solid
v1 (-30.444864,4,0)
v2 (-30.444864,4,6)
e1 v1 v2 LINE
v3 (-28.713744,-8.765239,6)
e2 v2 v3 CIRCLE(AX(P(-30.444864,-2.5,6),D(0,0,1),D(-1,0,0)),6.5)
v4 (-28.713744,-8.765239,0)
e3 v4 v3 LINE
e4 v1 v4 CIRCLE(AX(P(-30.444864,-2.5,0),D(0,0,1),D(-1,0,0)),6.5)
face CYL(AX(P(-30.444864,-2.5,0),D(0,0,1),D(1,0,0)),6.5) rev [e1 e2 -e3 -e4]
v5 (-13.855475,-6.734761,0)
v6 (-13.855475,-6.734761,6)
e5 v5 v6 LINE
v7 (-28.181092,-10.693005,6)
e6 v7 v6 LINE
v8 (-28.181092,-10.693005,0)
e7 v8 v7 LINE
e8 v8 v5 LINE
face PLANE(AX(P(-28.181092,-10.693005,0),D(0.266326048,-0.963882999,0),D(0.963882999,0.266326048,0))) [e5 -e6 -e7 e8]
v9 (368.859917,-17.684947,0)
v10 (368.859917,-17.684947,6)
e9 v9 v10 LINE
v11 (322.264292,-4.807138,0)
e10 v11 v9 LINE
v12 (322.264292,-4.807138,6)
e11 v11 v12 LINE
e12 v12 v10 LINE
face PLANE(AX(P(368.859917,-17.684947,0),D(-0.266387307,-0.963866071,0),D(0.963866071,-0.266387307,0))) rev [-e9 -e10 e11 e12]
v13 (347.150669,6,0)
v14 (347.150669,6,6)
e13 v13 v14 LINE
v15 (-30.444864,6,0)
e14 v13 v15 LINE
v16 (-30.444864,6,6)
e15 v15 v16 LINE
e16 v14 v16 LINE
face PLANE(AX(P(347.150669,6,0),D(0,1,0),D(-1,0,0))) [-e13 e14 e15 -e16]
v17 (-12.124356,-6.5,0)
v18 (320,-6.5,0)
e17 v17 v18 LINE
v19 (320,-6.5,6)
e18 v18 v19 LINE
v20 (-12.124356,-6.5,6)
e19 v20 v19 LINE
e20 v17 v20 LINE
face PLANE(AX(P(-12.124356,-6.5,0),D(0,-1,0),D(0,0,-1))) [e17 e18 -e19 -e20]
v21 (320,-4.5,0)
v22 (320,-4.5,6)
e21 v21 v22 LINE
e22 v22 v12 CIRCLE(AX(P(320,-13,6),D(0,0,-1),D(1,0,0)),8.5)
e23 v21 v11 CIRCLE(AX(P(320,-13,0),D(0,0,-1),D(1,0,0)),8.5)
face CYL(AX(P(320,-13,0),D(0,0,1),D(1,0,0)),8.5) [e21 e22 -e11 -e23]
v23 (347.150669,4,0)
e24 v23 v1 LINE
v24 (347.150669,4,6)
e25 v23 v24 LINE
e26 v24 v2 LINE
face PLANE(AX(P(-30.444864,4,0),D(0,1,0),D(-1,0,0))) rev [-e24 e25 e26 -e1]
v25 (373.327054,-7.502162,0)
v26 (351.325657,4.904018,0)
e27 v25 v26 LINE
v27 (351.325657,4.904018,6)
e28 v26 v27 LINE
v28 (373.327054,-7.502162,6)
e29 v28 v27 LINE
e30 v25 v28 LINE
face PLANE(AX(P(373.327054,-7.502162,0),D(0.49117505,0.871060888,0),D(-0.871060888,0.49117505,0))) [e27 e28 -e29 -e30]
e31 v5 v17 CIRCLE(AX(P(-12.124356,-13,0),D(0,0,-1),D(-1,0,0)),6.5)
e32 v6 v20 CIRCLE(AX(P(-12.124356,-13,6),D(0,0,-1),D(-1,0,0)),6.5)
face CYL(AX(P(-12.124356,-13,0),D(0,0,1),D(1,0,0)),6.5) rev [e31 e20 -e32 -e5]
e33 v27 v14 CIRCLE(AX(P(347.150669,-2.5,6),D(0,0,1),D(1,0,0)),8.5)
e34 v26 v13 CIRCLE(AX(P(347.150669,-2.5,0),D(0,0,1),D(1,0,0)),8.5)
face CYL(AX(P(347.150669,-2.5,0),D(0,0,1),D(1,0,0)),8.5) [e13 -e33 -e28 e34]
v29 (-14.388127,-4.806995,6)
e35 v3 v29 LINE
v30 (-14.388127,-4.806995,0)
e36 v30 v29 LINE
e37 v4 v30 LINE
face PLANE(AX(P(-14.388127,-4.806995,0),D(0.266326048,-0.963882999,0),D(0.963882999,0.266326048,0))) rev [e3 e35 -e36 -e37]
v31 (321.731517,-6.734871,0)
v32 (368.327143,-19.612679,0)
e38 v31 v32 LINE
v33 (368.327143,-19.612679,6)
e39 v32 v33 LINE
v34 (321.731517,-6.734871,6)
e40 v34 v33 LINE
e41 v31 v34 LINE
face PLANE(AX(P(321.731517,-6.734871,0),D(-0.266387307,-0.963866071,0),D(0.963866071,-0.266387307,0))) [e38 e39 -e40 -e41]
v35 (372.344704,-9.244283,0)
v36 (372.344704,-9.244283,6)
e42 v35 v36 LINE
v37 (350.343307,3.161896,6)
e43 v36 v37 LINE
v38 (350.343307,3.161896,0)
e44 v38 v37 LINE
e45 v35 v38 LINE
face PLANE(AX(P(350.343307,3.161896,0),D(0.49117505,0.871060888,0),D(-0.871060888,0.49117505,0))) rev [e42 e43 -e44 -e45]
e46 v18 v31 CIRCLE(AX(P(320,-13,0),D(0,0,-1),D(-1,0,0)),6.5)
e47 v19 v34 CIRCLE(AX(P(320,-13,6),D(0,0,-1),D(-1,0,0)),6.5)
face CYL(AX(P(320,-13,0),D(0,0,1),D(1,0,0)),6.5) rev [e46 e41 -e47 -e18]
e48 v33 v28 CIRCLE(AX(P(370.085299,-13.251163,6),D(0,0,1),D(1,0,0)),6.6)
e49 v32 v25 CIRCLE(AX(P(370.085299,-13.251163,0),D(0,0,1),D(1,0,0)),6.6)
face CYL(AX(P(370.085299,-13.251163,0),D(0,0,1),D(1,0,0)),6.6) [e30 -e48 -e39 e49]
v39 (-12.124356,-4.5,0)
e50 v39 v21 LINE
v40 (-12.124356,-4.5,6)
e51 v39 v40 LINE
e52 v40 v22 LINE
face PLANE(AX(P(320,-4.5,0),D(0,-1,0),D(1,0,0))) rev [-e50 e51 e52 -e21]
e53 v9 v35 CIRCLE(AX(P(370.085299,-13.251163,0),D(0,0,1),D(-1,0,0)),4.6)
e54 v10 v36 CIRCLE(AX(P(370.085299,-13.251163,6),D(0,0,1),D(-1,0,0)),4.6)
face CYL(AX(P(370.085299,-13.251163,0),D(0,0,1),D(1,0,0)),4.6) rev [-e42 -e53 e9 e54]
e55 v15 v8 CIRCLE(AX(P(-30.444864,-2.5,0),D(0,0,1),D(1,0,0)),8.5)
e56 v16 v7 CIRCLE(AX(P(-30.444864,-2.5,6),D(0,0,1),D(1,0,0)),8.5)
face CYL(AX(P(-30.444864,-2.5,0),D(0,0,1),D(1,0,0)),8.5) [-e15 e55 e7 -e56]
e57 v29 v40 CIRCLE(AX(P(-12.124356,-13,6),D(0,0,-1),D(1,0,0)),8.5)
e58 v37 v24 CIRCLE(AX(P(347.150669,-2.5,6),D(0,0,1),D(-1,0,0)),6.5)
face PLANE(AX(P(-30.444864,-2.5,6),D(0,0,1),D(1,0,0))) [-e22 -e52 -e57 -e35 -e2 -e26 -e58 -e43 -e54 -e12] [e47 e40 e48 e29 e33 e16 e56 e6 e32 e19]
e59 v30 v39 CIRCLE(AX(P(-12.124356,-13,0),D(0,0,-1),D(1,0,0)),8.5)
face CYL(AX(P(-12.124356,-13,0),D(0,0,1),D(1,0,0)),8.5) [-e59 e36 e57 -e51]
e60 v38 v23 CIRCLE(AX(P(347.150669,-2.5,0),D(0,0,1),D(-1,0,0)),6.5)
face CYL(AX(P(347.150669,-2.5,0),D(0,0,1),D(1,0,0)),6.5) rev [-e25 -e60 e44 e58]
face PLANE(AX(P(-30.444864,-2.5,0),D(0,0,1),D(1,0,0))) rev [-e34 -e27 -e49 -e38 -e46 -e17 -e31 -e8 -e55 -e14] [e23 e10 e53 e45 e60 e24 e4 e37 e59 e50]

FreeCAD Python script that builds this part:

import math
import FreeCAD as App
import Part
import Sketcher

doc = App.newDocument("Part")
body = doc.addObject("PartDesign::Body", "Body")

# Sketch on XY plane
sketch1 = body.newObject("Sketcher::SketchObject", "Sketch")
sketch1.AttachmentSupport = (doc.getObject("XY_Plane"), [""])
sketch1.MapMode = "FlatFace"
sketch1.AttachmentOffset = App.Placement(App.Vector(0, 0, 6), App.Rotation())
sketch1.addGeometry([
    Part.LineSegment(App.Vector(-28.2, -10.7, 0), App.Vector(-13.9, -6.7, 0)),  # 0
    Part.ArcOfCircle(Part.Circle(App.Vector(-12.1, -13, 0), App.Vector(0, 0, 1), 6.5), math.radians(90), math.radians(105.45)),  # 1
    Part.LineSegment(App.Vector(-12.1, -6.5, 0), App.Vector(320, -6.5, 0)),  # 2
    Part.ArcOfCircle(Part.Circle(App.Vector(320, -13, 0), App.Vector(0, 0, 1), 6.5), math.radians(74.55), math.radians(90)),  # 3
    Part.LineSegment(App.Vector(321.7, -6.7, 0), App.Vector(368.3, -19.6, 0)),  # 4
    Part.ArcOfCircle(Part.Circle(App.Vector(370.1, -13.3, 0), App.Vector(0, 0, 1), 6.6), math.radians(-105), math.radians(61)),  # 5
    Part.LineSegment(App.Vector(373.3, -7.5, 0), App.Vector(351.3, 4.9, 0)),  # 6
    Part.ArcOfCircle(Part.Circle(App.Vector(347.2, -2.5, 0), App.Vector(0, 0, 1), 8.5), math.radians(61), math.radians(90)),  # 7
    Part.LineSegment(App.Vector(347.2, 6, 0), App.Vector(-30.4, 6, 0)),  # 8
    Part.ArcOfCircle(Part.Circle(App.Vector(-30.4, -2.5, 0), App.Vector(0, 0, 1), 8.5), math.radians(90), math.radians(285)),  # 9
    Part.ArcOfCircle(Part.Circle(App.Vector(347.2, -2.5, 0), App.Vector(0, 0, 1), 6.5), math.radians(61), math.radians(90)),  # 10
    Part.LineSegment(App.Vector(350.3, 3.2, 0), App.Vector(372.3, -9.2, 0)),  # 11
    Part.ArcOfCircle(Part.Circle(App.Vector(370.1, -13.3, 0), App.Vector(0, 0, 1), 4.6), math.radians(-105), math.radians(61)),  # 12
    Part.LineSegment(App.Vector(368.9, -17.7, 0), App.Vector(322.3, -4.8, 0)),  # 13
    Part.ArcOfCircle(Part.Circle(App.Vector(320, -13, 0), App.Vector(0, 0, 1), 8.5), math.radians(74.55), math.radians(90)),  # 14
    Part.LineSegment(App.Vector(320, -4.5, 0), App.Vector(-12.1, -4.5, 0)),  # 15
    Part.ArcOfCircle(Part.Circle(App.Vector(-12.1, -13, 0), App.Vector(0, 0, 1), 8.5), math.radians(90), math.radians(105.45)),  # 16
    Part.LineSegment(App.Vector(-14.4, -4.8, 0), App.Vector(-28.7, -8.8, 0)),  # 17
    Part.ArcOfCircle(Part.Circle(App.Vector(-30.4, -2.5, 0), App.Vector(0, 0, 1), 6.5), math.radians(90), math.radians(285)),  # 18
    Part.LineSegment(App.Vector(-30.4, 4, 0), App.Vector(347.2, 4, 0)),  # 19
], False)
sketch1.addConstraint([
    Sketcher.Constraint("Tangent", 0, 2, 1, 2),
    Sketcher.Constraint("Tangent", 1, 1, 2, 1),
    Sketcher.Constraint("Tangent", 2, 2, 3, 2),
    Sketcher.Constraint("Tangent", 3, 1, 4, 1),
    Sketcher.Constraint("Tangent", 4, 2, 5, 1),
    Sketcher.Constraint("Tangent", 5, 2, 6, 1),
    Sketcher.Constraint("Tangent", 6, 2, 7, 1),
    Sketcher.Constraint("Tangent", 7, 2, 8, 1),
    Sketcher.Constraint("Tangent", 8, 2, 9, 1),
    Sketcher.Constraint("Tangent", 9, 2, 0, 1),
    Sketcher.Constraint("Tangent", 10, 1, 11, 1),
    Sketcher.Constraint("Tangent", 11, 2, 12, 2),
    Sketcher.Constraint("Tangent", 12, 1, 13, 1),
    Sketcher.Constraint("Tangent", 13, 2, 14, 1),
    Sketcher.Constraint("Tangent", 14, 2, 15, 1),
    Sketcher.Constraint("Tangent", 15, 2, 16, 1),
    Sketcher.Constraint("Tangent", 16, 2, 17, 1),
    Sketcher.Constraint("Tangent", 17, 2, 18, 2),
    Sketcher.Constraint("Tangent", 18, 1, 19, 1),
    Sketcher.Constraint("Tangent", 19, 2, 10, 2),
    Sketcher.Constraint("Horizontal", 2),
    Sketcher.Constraint("Horizontal", 8),
    Sketcher.Constraint("Horizontal", 15),
    Sketcher.Constraint("Horizontal", 19),
    Sketcher.Constraint("Coincident", 10, 3, 7, 3),
    Sketcher.Constraint("Coincident", 12, 3, 5, 3),
    Sketcher.Constraint("Coincident", 14, 3, 3, 3),
    Sketcher.Constraint("Coincident", 16, 3, 1, 3),
    Sketcher.Constraint("Coincident", 18, 3, 9, 3),
    Sketcher.Constraint("Equal", 1, 3),
    Sketcher.Constraint("Equal", 7, 9),
    Sketcher.Constraint("Equal", 3, 10),
    Sketcher.Constraint("Equal", 9, 14),
    Sketcher.Constraint("Parallel", 6, 11),
    Sketcher.Constraint("Radius", 1, 6.5),
    Sketcher.Constraint("Radius", 5, 6.6),
    Sketcher.Constraint("Radius", 7, 8.5),
    Sketcher.Constraint("DistanceY", 1, 3, -1, 1, 13.0),
    Sketcher.Constraint("DistanceX", -1, 1, 3, 3, 320.0),
    Sketcher.Constraint("DistanceY", -1, 1, 7, 2, 6.0),
    Sketcher.Constraint("DistanceY", 5, 3, 5, 2, 5.749002),
    Sketcher.Constraint("DistanceX", -1, 1, 5, 3, 370.085299),
    Sketcher.Constraint("DistanceX", 2, 1, 2, 2, 332.124356),
    Sketcher.Constraint("DistanceX", 8, 2, 8, 1, 377.595533),
    Sketcher.Constraint("DistanceX", -1, 1, 7, 3, 347.150669),
])
pad1 = body.newObject("PartDesign::Pad", "Pad")
pad1.Profile = sketch1
pad1.Length = 6
pad1.Reversed = True

doc.recompute()
